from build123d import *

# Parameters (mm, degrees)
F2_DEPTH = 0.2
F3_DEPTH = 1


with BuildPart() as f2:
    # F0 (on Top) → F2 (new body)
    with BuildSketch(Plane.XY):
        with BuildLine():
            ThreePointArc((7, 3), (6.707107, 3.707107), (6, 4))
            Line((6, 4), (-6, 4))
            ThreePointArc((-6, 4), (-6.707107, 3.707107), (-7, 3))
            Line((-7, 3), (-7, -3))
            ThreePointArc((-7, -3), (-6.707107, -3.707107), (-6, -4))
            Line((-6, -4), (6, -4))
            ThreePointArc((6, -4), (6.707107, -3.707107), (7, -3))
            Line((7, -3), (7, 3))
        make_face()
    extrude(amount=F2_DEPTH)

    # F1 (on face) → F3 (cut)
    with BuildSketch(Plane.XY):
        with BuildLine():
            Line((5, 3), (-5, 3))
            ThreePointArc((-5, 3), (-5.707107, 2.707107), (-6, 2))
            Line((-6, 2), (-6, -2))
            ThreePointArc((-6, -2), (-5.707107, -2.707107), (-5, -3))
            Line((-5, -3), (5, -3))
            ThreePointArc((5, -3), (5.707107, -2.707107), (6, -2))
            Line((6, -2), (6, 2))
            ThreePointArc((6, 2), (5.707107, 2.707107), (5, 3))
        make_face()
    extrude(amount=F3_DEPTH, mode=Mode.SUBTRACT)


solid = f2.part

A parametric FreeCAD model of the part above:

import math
import FreeCAD as App
import Part
import Sketcher
from FreeCAD import Vector
Q = App.Units.Quantity

doc = App.newDocument("Part")
body = doc.addObject("PartDesign::Body", "Body")

sketch1 = body.newObject("Sketcher::SketchObject", "Sketch")
sketch1.AttachmentSupport = (doc.getObject("XY_Plane"), [""])
sketch1.MapMode = "FlatFace"
sketch1.addGeometry(Part.ArcOfCircle(Part.Circle(Vector(6.000001, 3.000001, 0), Vector(0, 0, 1), 0.999999), math.radians(-0.000043), math.radians(90.000043)), False)
sketch1.addGeometry(Part.LineSegment(Vector(6, 4, 0), Vector(-6, 4, 0)), False)
sketch1.addGeometry(Part.ArcOfCircle(Part.Circle(Vector(-6.000001, 3.000001, 0), Vector(0, 0, 1), 0.999999), math.radians(89.999957), math.radians(180.000043)), False)
sketch1.addGeometry(Part.LineSegment(Vector(-7, 3, 0), Vector(-7, -3, 0)), False)
sketch1.addGeometry(Part.ArcOfCircle(Part.Circle(Vector(-6.000001, -3.000001, 0), Vector(0, 0, 1), 0.999999), math.radians(179.999957), math.radians(270.000043)), False)
sketch1.addGeometry(Part.LineSegment(Vector(-6, -4, 0), Vector(6, -4, 0)), False)
sketch1.addGeometry(Part.ArcOfCircle(Part.Circle(Vector(6.000001, -3.000001, 0), Vector(0, 0, 1), 0.999999), math.radians(-90.000043), math.radians(0.000043)), False)
sketch1.addGeometry(Part.LineSegment(Vector(7, -3, 0), Vector(7, 3, 0)), False)
sketch1.addConstraint(Sketcher.Constraint("Tangent", 0, 2, 1, 1))
sketch1.addConstraint(Sketcher.Constraint("Tangent", 1, 2, 2, 1))
sketch1.addConstraint(Sketcher.Constraint("Tangent", 2, 2, 3, 1))
sketch1.addConstraint(Sketcher.Constraint("Tangent", 3, 2, 4, 1))
sketch1.addConstraint(Sketcher.Constraint("Tangent", 4, 2, 5, 1))
sketch1.addConstraint(Sketcher.Constraint("Tangent", 5, 2, 6, 1))
sketch1.addConstraint(Sketcher.Constraint("Tangent", 6, 2, 7, 1))
sketch1.addConstraint(Sketcher.Constraint("Tangent", 7, 2, 0, 1))
sketch1.addConstraint(Sketcher.Constraint("Horizontal", 1))
sketch1.addConstraint(Sketcher.Constraint("Vertical", 3))
sketch1.addConstraint(Sketcher.Constraint("Horizontal", 5))
sketch1.addConstraint(Sketcher.Constraint("Vertical", 7))
sketch1.addConstraint(Sketcher.Constraint("Equal", 0, 2))
sketch1.addConstraint(Sketcher.Constraint("Equal", 2, 4))
sketch1.addConstraint(Sketcher.Constraint("Equal", 4, 6))
sketch1.addConstraint(Sketcher.Constraint("Symmetric", 0, 3, 4, 3, -1, 1))
sketch1.addConstraint(Sketcher.Constraint("Radius", 0, Q("0.999999 mm")))
sketch1.addConstraint(Sketcher.Constraint("DistanceX", 1, 2, 1, 1, Q("12 mm")))
sketch1.addConstraint(Sketcher.Constraint("DistanceY", 3, 2, 3, 1, Q("6 mm")))
pad1 = body.newObject("PartDesign::Pad", "Pad")
pad1.Profile = sketch1
pad1.Length = 0.2

sketch2 = body.newObject("Sketcher::SketchObject", "Sketch001")
sketch2.AttachmentSupport = (doc.getObject("XY_Plane"), [""])
sketch2.MapMode = "FlatFace"
sketch2.addGeometry(Part.LineSegment(Vector(5, 3, 0), Vector(-5, 3, 0)), False)
sketch2.addGeometry(Part.ArcOfCircle(Part.Circle(Vector(-5.000001, 2.000001, 0), Vector(0, 0, 1), 0.999999), math.radians(89.999957), math.radians(180.000043)), False)
sketch2.addGeometry(Part.LineSegment(Vector(-6, 2, 0), Vector(-6, -2, 0)), False)
sketch2.addGeometry(Part.ArcOfCircle(Part.Circle(Vector(-5.000001, -2.000001, 0), Vector(0, 0, 1), 0.999999), math.radians(179.999957), math.radians(270.000043)), False)
sketch2.addGeometry(Part.LineSegment(Vector(-5, -3, 0), Vector(5, -3, 0)), False)
sketch2.addGeometry(Part.ArcOfCircle(Part.Circle(Vector(5.000001, -2.000001, 0), Vector(0, 0, 1), 0.999999), math.radians(-90.000043), math.radians(0.000043)), False)
sketch2.addGeometry(Part.LineSegment(Vector(6, -2, 0), Vector(6, 2, 0)), False)
sketch2.addGeometry(Part.ArcOfCircle(Part.Circle(Vector(5.000001, 2.000001, 0), Vector(0, 0, 1), 0.999999), math.radians(-0.000043), math.radians(90.000043)), False)
sketch2.addConstraint(Sketcher.Constraint("Tangent", 0, 2, 1, 1))
sketch2.addConstraint(Sketcher.Constraint("Tangent", 1, 2, 2, 1))
sketch2.addConstraint(Sketcher.Constraint("Tangent", 2, 2, 3, 1))
sketch2.addConstraint(Sketcher.Constraint("Tangent", 3, 2, 4, 1))
sketch2.addConstraint(Sketcher.Constraint("Tangent", 4, 2, 5, 1))
sketch2.addConstraint(Sketcher.Constraint("Tangent", 5, 2, 6, 1))
sketch2.addConstraint(Sketcher.Constraint("Tangent", 6, 2, 7, 1))
sketch2.addConstraint(Sketcher.Constraint("Tangent", 7, 2, 0, 1))
sketch2.addConstraint(Sketcher.Constraint("Horizontal", 0))
sketch2.addConstraint(Sketcher.Constraint("Vertical", 2))
sketch2.addConstraint(Sketcher.Constraint("Horizontal", 4))
sketch2.addConstraint(Sketcher.Constraint("Vertical", 6))
sketch2.addConstraint(Sketcher.Constraint("Equal", 1, 3))
sketch2.addConstraint(Sketcher.Constraint("Equal", 3, 5))
sketch2.addConstraint(Sketcher.Constraint("Equal", 5, 7))
sketch2.addConstraint(Sketcher.Constraint("Symmetric", 1, 3, 5, 3, -1, 1))
sketch2.addConstraint(Sketcher.Constraint("Radius", 1, Q("0.999999 mm")))
sketch2.addConstraint(Sketcher.Constraint("DistanceX", 0, 2, 0, 1, Q("10 mm")))
sketch2.addConstraint(Sketcher.Constraint("DistanceY", 2, 2, 2, 1, Q("4 mm")))
pocket1 = body.newObject("PartDesign::Pocket", "Pocket")
pocket1.Profile = sketch2
pocket1.Length = 1
pocket1.Reversed = True

doc.recompute()
